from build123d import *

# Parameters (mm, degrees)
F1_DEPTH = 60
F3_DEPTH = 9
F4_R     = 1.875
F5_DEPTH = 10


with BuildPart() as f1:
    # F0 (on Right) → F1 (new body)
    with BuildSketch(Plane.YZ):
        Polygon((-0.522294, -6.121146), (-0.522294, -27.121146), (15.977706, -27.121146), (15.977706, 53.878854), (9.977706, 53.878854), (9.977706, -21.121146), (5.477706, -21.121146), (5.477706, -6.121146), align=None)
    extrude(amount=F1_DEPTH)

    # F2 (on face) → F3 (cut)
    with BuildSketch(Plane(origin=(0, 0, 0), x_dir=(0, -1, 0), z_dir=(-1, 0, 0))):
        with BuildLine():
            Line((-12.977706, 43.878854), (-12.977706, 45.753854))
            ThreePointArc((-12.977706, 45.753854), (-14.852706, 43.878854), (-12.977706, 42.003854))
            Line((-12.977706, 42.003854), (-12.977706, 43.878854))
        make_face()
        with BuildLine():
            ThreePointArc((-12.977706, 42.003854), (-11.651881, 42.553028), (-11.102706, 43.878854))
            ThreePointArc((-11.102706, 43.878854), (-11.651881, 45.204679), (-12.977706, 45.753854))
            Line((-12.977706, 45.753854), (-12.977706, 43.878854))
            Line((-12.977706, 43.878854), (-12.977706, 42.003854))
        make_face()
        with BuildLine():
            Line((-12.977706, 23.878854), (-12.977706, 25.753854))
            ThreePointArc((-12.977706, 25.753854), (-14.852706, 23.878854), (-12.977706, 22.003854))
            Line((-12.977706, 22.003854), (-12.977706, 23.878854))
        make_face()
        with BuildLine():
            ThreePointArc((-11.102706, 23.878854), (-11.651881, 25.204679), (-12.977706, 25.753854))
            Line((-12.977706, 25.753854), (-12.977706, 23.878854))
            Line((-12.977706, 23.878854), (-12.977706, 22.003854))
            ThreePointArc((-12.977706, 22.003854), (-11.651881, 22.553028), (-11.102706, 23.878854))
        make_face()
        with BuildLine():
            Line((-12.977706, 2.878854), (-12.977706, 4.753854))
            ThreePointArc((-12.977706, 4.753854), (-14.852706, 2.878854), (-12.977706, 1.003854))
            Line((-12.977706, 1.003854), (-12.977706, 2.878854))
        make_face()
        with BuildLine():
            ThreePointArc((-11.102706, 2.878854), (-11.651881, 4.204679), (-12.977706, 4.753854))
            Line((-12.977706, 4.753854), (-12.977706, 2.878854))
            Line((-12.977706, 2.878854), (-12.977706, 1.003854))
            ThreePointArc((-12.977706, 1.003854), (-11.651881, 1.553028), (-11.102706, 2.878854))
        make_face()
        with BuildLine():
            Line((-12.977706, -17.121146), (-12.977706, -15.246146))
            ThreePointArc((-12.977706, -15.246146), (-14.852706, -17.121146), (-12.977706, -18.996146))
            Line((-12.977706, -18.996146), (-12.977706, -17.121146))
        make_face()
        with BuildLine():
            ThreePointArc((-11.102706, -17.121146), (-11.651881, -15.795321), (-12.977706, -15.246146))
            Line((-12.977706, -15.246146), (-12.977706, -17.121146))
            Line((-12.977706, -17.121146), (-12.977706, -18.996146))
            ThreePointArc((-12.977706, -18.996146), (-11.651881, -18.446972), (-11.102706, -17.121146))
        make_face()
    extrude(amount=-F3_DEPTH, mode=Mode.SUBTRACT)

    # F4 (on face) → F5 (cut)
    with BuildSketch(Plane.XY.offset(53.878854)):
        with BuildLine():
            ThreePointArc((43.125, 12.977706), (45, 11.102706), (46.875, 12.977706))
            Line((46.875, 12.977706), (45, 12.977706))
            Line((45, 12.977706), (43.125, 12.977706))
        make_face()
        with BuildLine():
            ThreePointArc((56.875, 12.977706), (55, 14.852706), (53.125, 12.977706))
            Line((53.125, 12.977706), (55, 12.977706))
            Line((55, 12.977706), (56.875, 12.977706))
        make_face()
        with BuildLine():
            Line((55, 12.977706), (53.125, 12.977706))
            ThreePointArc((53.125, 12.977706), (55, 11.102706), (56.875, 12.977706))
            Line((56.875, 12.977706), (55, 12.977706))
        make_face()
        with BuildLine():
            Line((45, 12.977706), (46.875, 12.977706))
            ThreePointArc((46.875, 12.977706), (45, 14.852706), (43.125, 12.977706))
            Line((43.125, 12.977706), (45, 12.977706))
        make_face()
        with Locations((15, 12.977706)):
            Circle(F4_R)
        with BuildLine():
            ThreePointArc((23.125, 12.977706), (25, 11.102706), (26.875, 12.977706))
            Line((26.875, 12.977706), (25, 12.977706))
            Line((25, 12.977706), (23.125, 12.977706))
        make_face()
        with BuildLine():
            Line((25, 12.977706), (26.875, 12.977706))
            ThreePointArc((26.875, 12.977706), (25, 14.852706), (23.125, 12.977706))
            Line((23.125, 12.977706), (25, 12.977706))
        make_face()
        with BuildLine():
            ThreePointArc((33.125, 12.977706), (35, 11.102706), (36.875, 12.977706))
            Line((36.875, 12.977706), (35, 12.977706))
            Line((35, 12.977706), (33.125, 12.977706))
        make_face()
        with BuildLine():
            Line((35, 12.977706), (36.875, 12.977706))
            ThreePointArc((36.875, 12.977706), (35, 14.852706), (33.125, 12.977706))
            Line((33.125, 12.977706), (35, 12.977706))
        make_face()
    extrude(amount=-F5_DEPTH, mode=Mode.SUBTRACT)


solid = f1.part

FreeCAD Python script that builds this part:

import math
import FreeCAD as App
import Part
import Sketcher
from FreeCAD import Vector


def add_polygon(sketch, points):
    """Adds a closed chain of lines whose ends are joined by coincident constraints."""
    first, n = sketch.GeometryCount, len(points)
    for a, b in zip(points, points[1:] + points[:1]):
        sketch.addGeometry(Part.LineSegment(App.Vector(*a, 0), App.Vector(*b, 0)), False)
    for i in range(n):
        sketch.addConstraint(Sketcher.Constraint("Coincident", first + i, 2, first + (i + 1) % n, 1))

doc = App.newDocument("Part")
body = doc.addObject("PartDesign::Body", "Body")

# Sketch on YZ plane
sketch1 = doc.addObject("Sketcher::SketchObject", "Sketch")
body.addObject(sketch1)
sketch1.AttachmentSupport = (doc.YZ_Plane, [""])
sketch1.MapMode = "FlatFace"
add_polygon(sketch1, [(-0.5, -6.1), (-0.5, -27.1), (16, -27.1), (16, 53.9), (10, 53.9), (10, -21.1), (5.5, -21.1), (5.5, -6.1)])  # lines 0-7
sketch1.addConstraint([
    Sketcher.Constraint("Vertical", 0),
    Sketcher.Constraint("Horizontal", 1),
    Sketcher.Constraint("Vertical", 2),
    Sketcher.Constraint("Horizontal", 3),
    Sketcher.Constraint("Vertical", 4),
    Sketcher.Constraint("Horizontal", 5),
    Sketcher.Constraint("Vertical", 6),
    Sketcher.Constraint("Horizontal", 7),
    Sketcher.Constraint("Equal", 3, 7),
    Sketcher.Constraint("DistanceX", 3, 2, 3, 1, 6.0),
    Sketcher.Constraint("DistanceY", 0, 2, 0, 1, 21.0),
    Sketcher.Constraint("DistanceY", 2, 1, 2, 2, 81.0),
    Sketcher.Constraint("DistanceY", 4, 2, 4, 1, 75.0),
    Sketcher.Constraint("DistanceX", 1, 1, 1, 2, 16.5),
    Sketcher.Constraint("DistanceX", 0, 2, -1, 1, 0.522294),
    Sketcher.Constraint("DistanceY", 0, 2, -1, 1, 27.121146),
])
pad1 = doc.addObject("PartDesign::Pad", "Pad")
body.addObject(pad1)
pad1.Profile = sketch1
pad1.Length = 60

# Sketch on YZ plane
sketch2 = doc.addObject("Sketcher::SketchObject", "Sketch001")
body.addObject(sketch2)
sketch2.AttachmentSupport = (doc.YZ_Plane, [""])
sketch2.MapMode = "FlatFace"
sketch2.addGeometry([
    Part.ArcOfCircle(Part.Circle(Vector(13, 43.9, 0), Vector(0, 0, 1), 1.9), math.radians(-90), math.radians(90)),  # 0
    Part.ArcOfCircle(Part.Circle(Vector(13, 43.9, 0), Vector(0, 0, 1), 1.9), math.radians(180), math.radians(270)),  # 1
    Part.ArcOfCircle(Part.Circle(Vector(13, 43.9, 0), Vector(0, 0, 1), 1.9), math.radians(90), math.radians(180)),  # 2
    Part.ArcOfCircle(Part.Circle(Vector(13, 23.9, 0), Vector(0, 0, 1), 1.9), math.radians(-90), math.radians(90)),  # 3
    Part.ArcOfCircle(Part.Circle(Vector(13, 23.9, 0), Vector(0, 0, 1), 1.9), math.radians(180), math.radians(270)),  # 4
    Part.ArcOfCircle(Part.Circle(Vector(13, 23.9, 0), Vector(0, 0, 1), 1.9), math.radians(90), math.radians(180)),  # 5
    Part.ArcOfCircle(Part.Circle(Vector(13, 2.9, 0), Vector(0, 0, 1), 1.9), math.radians(-90), math.radians(90)),  # 6
    Part.ArcOfCircle(Part.Circle(Vector(13, 2.9, 0), Vector(0, 0, 1), 1.9), math.radians(180), math.radians(270)),  # 7
    Part.ArcOfCircle(Part.Circle(Vector(13, 2.9, 0), Vector(0, 0, 1), 1.9), math.radians(90), math.radians(180)),  # 8
    Part.ArcOfCircle(Part.Circle(Vector(13, -17.1, 0), Vector(0, 0, 1), 1.9), math.radians(-90), math.radians(90)),  # 9
    Part.ArcOfCircle(Part.Circle(Vector(13, -17.1, 0), Vector(0, 0, 1), 1.9), math.radians(180), math.radians(270)),  # 10
    Part.ArcOfCircle(Part.Circle(Vector(13, -17.1, 0), Vector(0, 0, 1), 1.9), math.radians(90), math.radians(180)),  # 11
], False)
sketch2.addConstraint([
    Sketcher.Constraint("Tangent", 0, 1, 1, 2),
    Sketcher.Constraint("Tangent", 1, 1, 2, 2),
    Sketcher.Constraint("Tangent", 2, 1, 0, 2),
    Sketcher.Constraint("Tangent", 3, 1, 4, 2),
    Sketcher.Constraint("Tangent", 4, 1, 5, 2),
    Sketcher.Constraint("Tangent", 5, 1, 3, 2),
    Sketcher.Constraint("Tangent", 6, 1, 7, 2),
    Sketcher.Constraint("Tangent", 7, 1, 8, 2),
    Sketcher.Constraint("Tangent", 8, 1, 6, 2),
    Sketcher.Constraint("Tangent", 9, 1, 10, 2),
    Sketcher.Constraint("Tangent", 10, 1, 11, 2),
    Sketcher.Constraint("Tangent", 11, 1, 9, 2),
    Sketcher.Constraint("Equal", 2, 3),
    Sketcher.Constraint("Equal", 5, 6),
    Sketcher.Constraint("Equal", 8, 9),
    Sketcher.Constraint("Horizontal", 2, 3, 1, 1),
    Sketcher.Constraint("Horizontal", 5, 3, 4, 1),
    Sketcher.Constraint("Horizontal", 8, 3, 7, 1),
    Sketcher.Constraint("Horizontal", 11, 3, 10, 1),
    Sketcher.Constraint("Vertical", 2, 3, 3, 3),
    Sketcher.Constraint("Vertical", 5, 3, 6, 3),
    Sketcher.Constraint("Vertical", 8, 3, 9, 3),
    Sketcher.Constraint("Vertical", 11, 3, 0, 1),
    Sketcher.Constraint("Vertical", 0, 1, 2, 1),
    Sketcher.Constraint("Vertical", 2, 1, 3, 1),
    Sketcher.Constraint("Vertical", 3, 1, 5, 1),
    Sketcher.Constraint("Vertical", 5, 1, 6, 1),
    Sketcher.Constraint("Vertical", 6, 1, 8, 1),
    Sketcher.Constraint("Vertical", 8, 1, 9, 1),
    Sketcher.Constraint("Vertical", 9, 1, 11, 1),
    Sketcher.Constraint("Radius", 0, 1.875),
    Sketcher.Constraint("DistanceY", 3, 3, 1, 3, 19.999999),
    Sketcher.Constraint("DistanceY", 6, 3, 4, 3, 20.999999),
    Sketcher.Constraint("DistanceY", 9, 3, 7, 3, 19.999999),
    Sketcher.Constraint("DistanceX", -1, 1, 0, 3, 12.977706),
    Sketcher.Constraint("DistanceY", -1, 1, 0, 3, 43.878854),
])
pocket1 = doc.addObject("PartDesign::Pocket", "Pocket")
body.addObject(pocket1)
pocket1.Profile = sketch2
pocket1.Length = 9
pocket1.Reversed = True

# Sketch on XY plane
sketch3 = doc.addObject("Sketcher::SketchObject", "Sketch002")
body.addObject(sketch3)
sketch3.AttachmentSupport = (doc.XY_Plane, [""])
sketch3.MapMode = "FlatFace"
sketch3.AttachmentOffset = App.Placement(Vector(0, 0, 53.878854), App.Rotation())
sketch3.addGeometry([
    Part.Circle(Vector(45, 13, 0), Vector(0, 0, 1), 1.9),  # 0
    Part.Circle(Vector(55, 13, 0), Vector(0, 0, 1), 1.9),  # 1
    Part.Circle(Vector(15, 13, 0), Vector(0, 0, 1), 1.9),  # 2
    Part.Circle(Vector(25, 13, 0), Vector(0, 0, 1), 1.9),  # 3
    Part.Circle(Vector(35, 13, 0), Vector(0, 0, 1), 1.9),  # 4
], False)
sketch3.addConstraint([
    Sketcher.Constraint("Equal", 0, 1),
    Sketcher.Constraint("Equal", 1, 2),
    Sketcher.Constraint("Equal", 2, 3),
    Sketcher.Constraint("Equal", 3, 4),
    Sketcher.Constraint("Horizontal", 0, 3, 1, 3),
    Sketcher.Constraint("Horizontal", 1, 3, 2, 3),
    Sketcher.Constraint("Horizontal", 2, 3, 3, 3),
    Sketcher.Constraint("Horizontal", 3, 3, 4, 3),
    Sketcher.Constraint("Diameter", 0, 3.75),
    Sketcher.Constraint("DistanceX", -1, 1, 0, 3, 45.0),
    Sketcher.Constraint("DistanceX", -1, 1, 1, 3, 55.0),
    Sketcher.Constraint("DistanceX", -1, 1, 2, 3, 15.0),
    Sketcher.Constraint("DistanceX", -1, 1, 3, 3, 25.0),
    Sketcher.Constraint("DistanceX", -1, 1, 4, 3, 35.0),
    Sketcher.Constraint("DistanceY", -1, 1, 0, 3, 12.977706),
])
pocket2 = doc.addObject("PartDesign::Pocket", "Pocket001")
body.addObject(pocket2)
pocket2.Profile = sketch3
pocket2.Length = 10

doc.recompute()
